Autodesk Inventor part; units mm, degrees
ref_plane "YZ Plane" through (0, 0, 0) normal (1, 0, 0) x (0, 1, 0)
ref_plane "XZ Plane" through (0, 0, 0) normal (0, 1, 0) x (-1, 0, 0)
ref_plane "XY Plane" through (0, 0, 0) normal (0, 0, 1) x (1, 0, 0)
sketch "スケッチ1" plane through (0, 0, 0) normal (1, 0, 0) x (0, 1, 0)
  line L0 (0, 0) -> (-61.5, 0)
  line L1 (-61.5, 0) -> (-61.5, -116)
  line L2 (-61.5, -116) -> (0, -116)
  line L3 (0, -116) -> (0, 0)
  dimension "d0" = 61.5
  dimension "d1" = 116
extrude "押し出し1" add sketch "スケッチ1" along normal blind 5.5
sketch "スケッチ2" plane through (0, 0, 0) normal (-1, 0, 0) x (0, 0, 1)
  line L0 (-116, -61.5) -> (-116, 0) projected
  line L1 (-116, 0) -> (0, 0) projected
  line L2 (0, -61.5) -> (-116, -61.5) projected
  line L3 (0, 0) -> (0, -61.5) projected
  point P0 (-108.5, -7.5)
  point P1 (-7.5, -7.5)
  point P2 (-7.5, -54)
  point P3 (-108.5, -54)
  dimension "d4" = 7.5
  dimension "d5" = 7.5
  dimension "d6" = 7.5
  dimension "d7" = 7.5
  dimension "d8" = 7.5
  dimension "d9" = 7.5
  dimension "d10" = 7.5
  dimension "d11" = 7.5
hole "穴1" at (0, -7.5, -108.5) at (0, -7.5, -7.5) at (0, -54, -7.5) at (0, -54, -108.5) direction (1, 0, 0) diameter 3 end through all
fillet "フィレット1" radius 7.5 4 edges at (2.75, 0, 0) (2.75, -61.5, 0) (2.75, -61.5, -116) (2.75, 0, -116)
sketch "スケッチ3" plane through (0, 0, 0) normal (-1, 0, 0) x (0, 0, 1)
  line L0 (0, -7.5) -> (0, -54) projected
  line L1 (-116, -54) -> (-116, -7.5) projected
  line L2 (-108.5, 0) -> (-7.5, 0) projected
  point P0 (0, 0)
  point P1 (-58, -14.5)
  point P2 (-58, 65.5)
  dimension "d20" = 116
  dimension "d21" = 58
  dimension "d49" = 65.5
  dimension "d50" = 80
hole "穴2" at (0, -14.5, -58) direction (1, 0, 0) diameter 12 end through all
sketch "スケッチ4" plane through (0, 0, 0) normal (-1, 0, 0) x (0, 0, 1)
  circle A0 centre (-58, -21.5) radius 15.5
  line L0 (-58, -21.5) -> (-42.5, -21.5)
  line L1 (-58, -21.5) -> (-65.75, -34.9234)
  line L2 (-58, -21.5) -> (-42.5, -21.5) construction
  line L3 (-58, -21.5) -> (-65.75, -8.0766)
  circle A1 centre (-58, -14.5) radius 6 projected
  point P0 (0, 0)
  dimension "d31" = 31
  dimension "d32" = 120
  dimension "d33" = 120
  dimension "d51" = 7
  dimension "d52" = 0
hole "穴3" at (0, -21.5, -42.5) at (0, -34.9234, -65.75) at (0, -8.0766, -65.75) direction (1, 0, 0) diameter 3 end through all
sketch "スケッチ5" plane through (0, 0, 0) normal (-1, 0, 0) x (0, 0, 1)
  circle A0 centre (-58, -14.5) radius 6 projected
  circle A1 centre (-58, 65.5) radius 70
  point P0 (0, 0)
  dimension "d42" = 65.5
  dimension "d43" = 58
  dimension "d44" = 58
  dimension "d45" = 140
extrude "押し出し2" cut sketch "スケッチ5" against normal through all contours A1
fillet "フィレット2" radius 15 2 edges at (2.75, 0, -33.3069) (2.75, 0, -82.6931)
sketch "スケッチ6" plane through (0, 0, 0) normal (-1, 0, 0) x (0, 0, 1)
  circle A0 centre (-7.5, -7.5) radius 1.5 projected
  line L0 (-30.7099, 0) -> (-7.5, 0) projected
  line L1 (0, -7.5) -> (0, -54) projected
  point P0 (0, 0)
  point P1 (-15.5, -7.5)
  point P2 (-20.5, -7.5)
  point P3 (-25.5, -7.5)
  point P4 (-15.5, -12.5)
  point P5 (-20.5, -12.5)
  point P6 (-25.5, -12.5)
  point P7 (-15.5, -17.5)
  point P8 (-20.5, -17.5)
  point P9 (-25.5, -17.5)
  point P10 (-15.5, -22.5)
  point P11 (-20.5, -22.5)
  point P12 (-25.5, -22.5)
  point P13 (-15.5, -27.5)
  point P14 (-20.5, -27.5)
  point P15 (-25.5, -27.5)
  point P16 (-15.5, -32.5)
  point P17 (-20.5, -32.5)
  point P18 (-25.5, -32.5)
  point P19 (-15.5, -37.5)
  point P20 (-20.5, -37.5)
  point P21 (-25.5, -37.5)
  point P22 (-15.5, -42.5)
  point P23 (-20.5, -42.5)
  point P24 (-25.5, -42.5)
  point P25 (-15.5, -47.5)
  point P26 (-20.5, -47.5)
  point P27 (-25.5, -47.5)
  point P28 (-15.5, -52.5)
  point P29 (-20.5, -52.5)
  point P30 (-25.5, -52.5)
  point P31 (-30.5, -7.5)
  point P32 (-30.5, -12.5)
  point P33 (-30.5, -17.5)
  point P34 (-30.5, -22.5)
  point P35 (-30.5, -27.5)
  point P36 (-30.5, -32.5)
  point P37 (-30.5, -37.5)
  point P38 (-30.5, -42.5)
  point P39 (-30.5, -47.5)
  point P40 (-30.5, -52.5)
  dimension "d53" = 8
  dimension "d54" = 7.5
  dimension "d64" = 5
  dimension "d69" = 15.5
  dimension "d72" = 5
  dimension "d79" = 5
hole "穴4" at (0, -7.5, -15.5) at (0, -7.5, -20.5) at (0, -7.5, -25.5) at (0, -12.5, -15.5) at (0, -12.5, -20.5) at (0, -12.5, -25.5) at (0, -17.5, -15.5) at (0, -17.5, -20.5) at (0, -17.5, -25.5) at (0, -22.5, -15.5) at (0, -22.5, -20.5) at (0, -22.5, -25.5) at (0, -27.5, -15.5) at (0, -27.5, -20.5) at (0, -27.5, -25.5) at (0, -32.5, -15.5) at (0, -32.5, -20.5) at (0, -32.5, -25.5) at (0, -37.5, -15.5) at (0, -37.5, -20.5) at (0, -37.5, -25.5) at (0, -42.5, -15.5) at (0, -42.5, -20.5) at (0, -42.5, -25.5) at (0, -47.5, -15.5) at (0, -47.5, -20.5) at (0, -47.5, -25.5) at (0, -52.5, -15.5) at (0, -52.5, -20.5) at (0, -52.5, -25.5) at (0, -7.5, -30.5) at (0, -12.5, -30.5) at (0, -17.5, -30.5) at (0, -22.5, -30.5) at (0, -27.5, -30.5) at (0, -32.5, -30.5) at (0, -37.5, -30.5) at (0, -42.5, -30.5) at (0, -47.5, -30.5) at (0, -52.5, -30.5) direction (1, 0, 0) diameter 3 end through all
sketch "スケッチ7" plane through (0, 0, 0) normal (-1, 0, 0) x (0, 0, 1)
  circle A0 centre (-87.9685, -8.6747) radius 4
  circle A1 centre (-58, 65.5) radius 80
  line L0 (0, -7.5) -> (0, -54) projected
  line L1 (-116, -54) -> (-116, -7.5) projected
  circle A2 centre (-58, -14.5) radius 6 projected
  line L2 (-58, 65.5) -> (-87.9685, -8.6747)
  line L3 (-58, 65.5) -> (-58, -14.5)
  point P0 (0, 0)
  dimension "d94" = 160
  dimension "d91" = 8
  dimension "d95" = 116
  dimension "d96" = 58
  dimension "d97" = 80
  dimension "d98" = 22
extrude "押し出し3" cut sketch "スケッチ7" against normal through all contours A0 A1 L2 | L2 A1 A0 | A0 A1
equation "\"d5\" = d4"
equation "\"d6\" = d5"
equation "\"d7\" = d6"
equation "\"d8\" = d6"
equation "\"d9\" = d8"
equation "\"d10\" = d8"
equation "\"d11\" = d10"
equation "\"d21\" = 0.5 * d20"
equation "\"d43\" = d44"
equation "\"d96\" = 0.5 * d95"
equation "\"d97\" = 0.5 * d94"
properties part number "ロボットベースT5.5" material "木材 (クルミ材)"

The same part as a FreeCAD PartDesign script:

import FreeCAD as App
import Part
import Sketcher
from FreeCAD import Vector
Q = App.Units.Quantity


def edges_at(feature, points):
    """Names of the edges that pass closest to the given points."""
    edges = feature.Shape.Edges
    near = lambda p: min(range(len(edges)), key=lambda i: edges[i].distToShape(Part.Vertex(*p))[0])
    return sorted({f"Edge{near(p) + 1}" for p in points})

doc = App.newDocument("Part")
body = doc.addObject("PartDesign::Body", "Body")

sketch1 = doc.addObject("Sketcher::SketchObject", "Sketch")
body.addObject(sketch1)
sketch1.AttachmentSupport = (doc.YZ_Plane, [""])
sketch1.MapMode = "FlatFace"
sketch1.addGeometry(Part.LineSegment(Vector(0, -116, 0), Vector(0, 0, 0)), False)
sketch1.addGeometry(Part.LineSegment(Vector(0, 0, 0), Vector(-62, 0, 0)), False)
sketch1.addGeometry(Part.LineSegment(Vector(-62, 0, 0), Vector(-62, -116, 0)), False)
sketch1.addGeometry(Part.LineSegment(Vector(-62, -116, 0), Vector(0, -116, 0)), False)
sketch1.addConstraint(Sketcher.Constraint("Coincident", 0, 2, 1, 1))
sketch1.addConstraint(Sketcher.Constraint("Coincident", 1, 2, 2, 1))
sketch1.addConstraint(Sketcher.Constraint("Coincident", 2, 2, 3, 1))
sketch1.addConstraint(Sketcher.Constraint("Coincident", 3, 2, 0, 1))
sketch1.addConstraint(Sketcher.Constraint("Vertical", 0))
sketch1.addConstraint(Sketcher.Constraint("Horizontal", 1))
sketch1.addConstraint(Sketcher.Constraint("Vertical", 2))
sketch1.addConstraint(Sketcher.Constraint("Horizontal", 3))
sketch1.addConstraint(Sketcher.Constraint("Coincident", 0, 2, -1, 1))
sketch1.addConstraint(Sketcher.Constraint("DistanceY", 0, 1, 0, 2, Q("116 mm")))
sketch1.addConstraint(Sketcher.Constraint("DistanceX", 1, 2, 1, 1, Q("61.5 mm")))
pad1 = doc.addObject("PartDesign::Pad", "Pad")
body.addObject(pad1)
pad1.Profile = sketch1
pad1.Length = 5.5

sketch2 = doc.addObject("Sketcher::SketchObject", "Sketch001")
body.addObject(sketch2)
sketch2.AttachmentSupport = (doc.YZ_Plane, [""])
sketch2.MapMode = "FlatFace"
sketch2.addGeometry(Part.Circle(Vector(-7.5, -108.5, 0), Vector(0, 0, 1), 1.5), False)
sketch2.addGeometry(Part.Circle(Vector(-7.5, -7.5, 0), Vector(0, 0, 1), 1.5), False)
sketch2.addGeometry(Part.Circle(Vector(-54, -7.5, 0), Vector(0, 0, 1), 1.5), False)
sketch2.addGeometry(Part.Circle(Vector(-54, -108.5, 0), Vector(0, 0, 1), 1.5), False)
sketch2.addConstraint(Sketcher.Constraint("Equal", 0, 1))
sketch2.addConstraint(Sketcher.Constraint("Equal", 1, 2))
sketch2.addConstraint(Sketcher.Constraint("Equal", 2, 3))
sketch2.addConstraint(Sketcher.Constraint("Horizontal", 1, 3, 2, 3))
sketch2.addConstraint(Sketcher.Constraint("Horizontal", 0, 3, 3, 3))
sketch2.addConstraint(Sketcher.Constraint("Vertical", 0, 3, 1, 3))
sketch2.addConstraint(Sketcher.Constraint("Vertical", 2, 3, 3, 3))
sketch2.addConstraint(Sketcher.Constraint("Diameter", 0, Q("3 mm")))
sketch2.addConstraint(Sketcher.Constraint("DistanceX", 2, 3, -1, 1, Q("54 mm")))
sketch2.addConstraint(Sketcher.Constraint("DistanceY", 0, 3, 1, 3, Q("101 mm")))
sketch2.addConstraint(Sketcher.Constraint("DistanceX", 0, 3, -1, 1, Q("7.5 mm")))
sketch2.addConstraint(Sketcher.Constraint("DistanceY", 0, 3, -1, 1, Q("108.5 mm")))
doc.recompute()
hole = doc.addObject("PartDesign::Hole", "Hole")
body.addObject(hole)
hole.Profile = sketch2
hole.ThreadType = "None"
hole.Diameter = 3
hole.DepthType = "ThroughAll"
hole.Reversed = True
doc.recompute()

fillet = doc.addObject("PartDesign::Fillet", "Fillet")
body.addObject(fillet)
fillet.Base = (hole, edges_at(hole, [
    (2.75, 0, 0),
    (2.75, -61.5, 0),
    (2.75, -61.5, -116),
    (2.75, 0, -116),
]))
fillet.Radius = 7.5

sketch3 = doc.addObject("Sketcher::SketchObject", "Sketch002")
body.addObject(sketch3)
sketch3.AttachmentSupport = (doc.YZ_Plane, [""])
sketch3.MapMode = "FlatFace"
sketch3.addGeometry(Part.Circle(Vector(-14, -58, 0), Vector(0, 0, 1), 6), False)
sketch3.addConstraint(Sketcher.Constraint("Diameter", 0, Q("12 mm")))
sketch3.addConstraint(Sketcher.Constraint("DistanceY", 0, 3, -1, 1, Q("58 mm")))
sketch3.addConstraint(Sketcher.Constraint("DistanceX", 0, 3, -1, 1, Q("14.5 mm")))
doc.recompute()
hole2 = doc.addObject("PartDesign::Hole", "Hole001")
body.addObject(hole2)
hole2.Profile = sketch3
hole2.ThreadType = "None"
hole2.Diameter = 12
hole2.DepthType = "ThroughAll"
hole2.Reversed = True

sketch4 = doc.addObject("Sketcher::SketchObject", "Sketch003")
body.addObject(sketch4)
sketch4.AttachmentSupport = (doc.YZ_Plane, [""])
sketch4.MapMode = "FlatFace"
sketch4.addGeometry(Part.Circle(Vector(-21.5, -42.5, 0), Vector(0, 0, 1), 1.5), False)
sketch4.addGeometry(Part.Circle(Vector(-34.9, -65.8, 0), Vector(0, 0, 1), 1.5), False)
sketch4.addGeometry(Part.Circle(Vector(-8.1, -65.8, 0), Vector(0, 0, 1), 1.5), False)
sketch4.addConstraint(Sketcher.Constraint("Equal", 0, 1))
sketch4.addConstraint(Sketcher.Constraint("Equal", 1, 2))
sketch4.addConstraint(Sketcher.Constraint("Horizontal", 1, 3, 2, 3))
sketch4.addConstraint(Sketcher.Constraint("Diameter", 0, Q("3 mm")))
sketch4.addConstraint(Sketcher.Constraint("DistanceX", 0, 3, -1, 1, Q("21.5 mm")))
sketch4.addConstraint(Sketcher.Constraint("DistanceY", 0, 3, -1, 1, Q("42.5 mm")))
sketch4.addConstraint(Sketcher.Constraint("DistanceY", 1, 3, -1, 1, Q("65.75 mm")))
sketch4.addConstraint(Sketcher.Constraint("DistanceX", 1, 3, -1, 1, Q("34.9234 mm")))
sketch4.addConstraint(Sketcher.Constraint("DistanceX", 2, 3, -1, 1, Q("8.0766 mm")))
doc.recompute()
hole3 = doc.addObject("PartDesign::Hole", "Hole002")
body.addObject(hole3)
hole3.Profile = sketch4
hole3.ThreadType = "None"
hole3.Diameter = 3
hole3.DepthType = "ThroughAll"
hole3.Reversed = True

sketch5 = doc.addObject("Sketcher::SketchObject", "Sketch004")
body.addObject(sketch5)
sketch5.AttachmentSupport = (doc.YZ_Plane, [""])
sketch5.MapMode = "FlatFace"
sketch5.addGeometry(Part.Circle(Vector(66, -58, 0), Vector(0, 0, 1), 70), False)
sketch5.addConstraint(Sketcher.Constraint("Diameter", 0, Q("140 mm")))
sketch5.addConstraint(Sketcher.Constraint("DistanceY", 0, 3, -1, 1, Q("58 mm")))
sketch5.addConstraint(Sketcher.Constraint("DistanceX", -1, 1, 0, 3, Q("65.5 mm")))
pocket1 = doc.addObject("PartDesign::Pocket", "Pocket")
body.addObject(pocket1)
pocket1.Profile = sketch5
pocket1.Type = "ThroughAll"
pocket1.Reversed = True
doc.recompute()

fillet2 = doc.addObject("PartDesign::Fillet", "Fillet001")
body.addObject(fillet2)
fillet2.Base = (pocket1, edges_at(pocket1, [(2.75, 0, -33.307), (2.75, 0, -82.693)]))
fillet2.Radius = 15

sketch6 = doc.addObject("Sketcher::SketchObject", "Sketch005")
body.addObject(sketch6)
sketch6.AttachmentSupport = (doc.YZ_Plane, [""])
sketch6.MapMode = "FlatFace"
sketch6.addGeometry(Part.Circle(Vector(-7.5, -15.5, 0), Vector(0, 0, 1), 1.5), False)
sketch6.addGeometry(Part.Circle(Vector(-7.5, -20.5, 0), Vector(0, 0, 1), 1.5), False)
sketch6.addGeometry(Part.Circle(Vector(-7.5, -25.5, 0), Vector(0, 0, 1), 1.5), False)
sketch6.addGeometry(Part.Circle(Vector(-12.5, -15.5, 0), Vector(0, 0, 1), 1.5), False)
sketch6.addGeometry(Part.Circle(Vector(-12.5, -20.5, 0), Vector(0, 0, 1), 1.5), False)
sketch6.addGeometry(Part.Circle(Vector(-12.5, -25.5, 0), Vector(0, 0, 1), 1.5), False)
sketch6.addGeometry(Part.Circle(Vector(-17.5, -15.5, 0), Vector(0, 0, 1), 1.5), False)
sketch6.addGeometry(Part.Circle(Vector(-17.5, -20.5, 0), Vector(0, 0, 1), 1.5), False)
sketch6.addGeometry(Part.Circle(Vector(-17.5, -25.5, 0), Vector(0, 0, 1), 1.5), False)
sketch6.addGeometry(Part.Circle(Vector(-22.5, -15.5, 0), Vector(0, 0, 1), 1.5), False)
sketch6.addGeometry(Part.Circle(Vector(-22.5, -20.5, 0), Vector(0, 0, 1), 1.5), False)
sketch6.addGeometry(Part.Circle(Vector(-22.5, -25.5, 0), Vector(0, 0, 1), 1.5), False)
sketch6.addGeometry(Part.Circle(Vector(-27.5, -15.5, 0), Vector(0, 0, 1), 1.5), False)
sketch6.addGeometry(Part.Circle(Vector(-27.5, -20.5, 0), Vector(0, 0, 1), 1.5), False)
sketch6.addGeometry(Part.Circle(Vector(-27.5, -25.5, 0), Vector(0, 0, 1), 1.5), False)
sketch6.addGeometry(Part.Circle(Vector(-32.5, -15.5, 0), Vector(0, 0, 1), 1.5), False)
sketch6.addGeometry(Part.Circle(Vector(-32.5, -20.5, 0), Vector(0, 0, 1), 1.5), False)
sketch6.addGeometry(Part.Circle(Vector(-32.5, -25.5, 0), Vector(0, 0, 1), 1.5), False)
sketch6.addGeometry(Part.Circle(Vector(-37.5, -15.5, 0), Vector(0, 0, 1), 1.5), False)
sketch6.addGeometry(Part.Circle(Vector(-37.5, -20.5, 0), Vector(0, 0, 1), 1.5), False)
sketch6.addGeometry(Part.Circle(Vector(-37.5, -25.5, 0), Vector(0, 0, 1), 1.5), False)
sketch6.addGeometry(Part.Circle(Vector(-42.5, -15.5, 0), Vector(0, 0, 1), 1.5), False)
sketch6.addGeometry(Part.Circle(Vector(-42.5, -20.5, 0), Vector(0, 0, 1), 1.5), False)
sketch6.addGeometry(Part.Circle(Vector(-42.5, -25.5, 0), Vector(0, 0, 1), 1.5), False)
sketch6.addGeometry(Part.Circle(Vector(-47.5, -15.5, 0), Vector(0, 0, 1), 1.5), False)
sketch6.addGeometry(Part.Circle(Vector(-47.5, -20.5, 0), Vector(0, 0, 1), 1.5), False)
sketch6.addGeometry(Part.Circle(Vector(-47.5, -25.5, 0), Vector(0, 0, 1), 1.5), False)
sketch6.addGeometry(Part.Circle(Vector(-52.5, -15.5, 0), Vector(0, 0, 1), 1.5), False)
sketch6.addGeometry(Part.Circle(Vector(-52.5, -20.5, 0), Vector(0, 0, 1), 1.5), False)
sketch6.addGeometry(Part.Circle(Vector(-52.5, -25.5, 0), Vector(0, 0, 1), 1.5), False)
sketch6.addGeometry(Part.Circle(Vector(-7.5, -30.5, 0), Vector(0, 0, 1), 1.5), False)
sketch6.addGeometry(Part.Circle(Vector(-12.5, -30.5, 0), Vector(0, 0, 1), 1.5), False)
sketch6.addGeometry(Part.Circle(Vector(-17.5, -30.5, 0), Vector(0, 0, 1), 1.5), False)
sketch6.addGeometry(Part.Circle(Vector(-22.5, -30.5, 0), Vector(0, 0, 1), 1.5), False)
sketch6.addGeometry(Part.Circle(Vector(-27.5, -30.5, 0), Vector(0, 0, 1), 1.5), False)
sketch6.addGeometry(Part.Circle(Vector(-32.5, -30.5, 0), Vector(0, 0, 1), 1.5), False)
sketch6.addGeometry(Part.Circle(Vector(-37.5, -30.5, 0), Vector(0, 0, 1), 1.5), False)
sketch6.addGeometry(Part.Circle(Vector(-42.5, -30.5, 0), Vector(0, 0, 1), 1.5), False)
sketch6.addGeometry(Part.Circle(Vector(-47.5, -30.5, 0), Vector(0, 0, 1), 1.5), False)
sketch6.addGeometry(Part.Circle(Vector(-52.5, -30.5, 0), Vector(0, 0, 1), 1.5), False)
sketch6.addConstraint(Sketcher.Constraint("Equal", 0, 1))
sketch6.addConstraint(Sketcher.Constraint("Equal", 1, 2))
sketch6.addConstraint(Sketcher.Constraint("Equal", 2, 3))
sketch6.addConstraint(Sketcher.Constraint("Equal", 3, 4))
sketch6.addConstraint(Sketcher.Constraint("Equal", 4, 5))
sketch6.addConstraint(Sketcher.Constraint("Equal", 5, 6))
sketch6.addConstraint(Sketcher.Constraint("Equal", 6, 7))
sketch6.addConstraint(Sketcher.Constraint("Equal", 7, 8))
sketch6.addConstraint(Sketcher.Constraint("Equal", 8, 9))
sketch6.addConstraint(Sketcher.Constraint("Equal", 9, 10))
sketch6.addConstraint(Sketcher.Constraint("Equal", 10, 11))
sketch6.addConstraint(Sketcher.Constraint("Equal", 11, 12))
sketch6.addConstraint(Sketcher.Constraint("Equal", 12, 13))
sketch6.addConstraint(Sketcher.Constraint("Equal", 13, 14))
sketch6.addConstraint(Sketcher.Constraint("Equal", 14, 15))
sketch6.addConstraint(Sketcher.Constraint("Equal", 15, 16))
sketch6.addConstraint(Sketcher.Constraint("Equal", 16, 17))
sketch6.addConstraint(Sketcher.Constraint("Equal", 17, 18))
sketch6.addConstraint(Sketcher.Constraint("Equal", 18, 19))
sketch6.addConstraint(Sketcher.Constraint("Equal", 19, 20))
sketch6.addConstraint(Sketcher.Constraint("Equal", 20, 21))
sketch6.addConstraint(Sketcher.Constraint("Equal", 21, 22))
sketch6.addConstraint(Sketcher.Constraint("Equal", 22, 23))
sketch6.addConstraint(Sketcher.Constraint("Equal", 23, 24))
sketch6.addConstraint(Sketcher.Constraint("Equal", 24, 25))
sketch6.addConstraint(Sketcher.Constraint("Equal", 25, 26))
sketch6.addConstraint(Sketcher.Constraint("Equal", 26, 27))
sketch6.addConstraint(Sketcher.Constraint("Equal", 27, 28))
sketch6.addConstraint(Sketcher.Constraint("Equal", 28, 29))
sketch6.addConstraint(Sketcher.Constraint("Equal", 29, 30))
sketch6.addConstraint(Sketcher.Constraint("Equal", 30, 31))
sketch6.addConstraint(Sketcher.Constraint("Equal", 31, 32))
sketch6.addConstraint(Sketcher.Constraint("Equal", 32, 33))
sketch6.addConstraint(Sketcher.Constraint("Equal", 33, 34))
sketch6.addConstraint(Sketcher.Constraint("Equal", 34, 35))
sketch6.addConstraint(Sketcher.Constraint("Equal", 35, 36))
sketch6.addConstraint(Sketcher.Constraint("Equal", 36, 37))
sketch6.addConstraint(Sketcher.Constraint("Equal", 37, 38))
sketch6.addConstraint(Sketcher.Constraint("Equal", 38, 39))
sketch6.addConstraint(Sketcher.Constraint("Horizontal", 0, 3, 3, 3))
sketch6.addConstraint(Sketcher.Constraint("Horizontal", 1, 3, 4, 3))
sketch6.addConstraint(Sketcher.Constraint("Horizontal", 2, 3, 5, 3))
sketch6.addConstraint(Sketcher.Constraint("Horizontal", 3, 3, 6, 3))
sketch6.addConstraint(Sketcher.Constraint("Horizontal", 4, 3, 7, 3))
sketch6.addConstraint(Sketcher.Constraint("Horizontal", 5, 3, 8, 3))
sketch6.addConstraint(Sketcher.Constraint("Horizontal", 6, 3, 9, 3))
sketch6.addConstraint(Sketcher.Constraint("Horizontal", 7, 3, 10, 3))
sketch6.addConstraint(Sketcher.Constraint("Horizontal", 8, 3, 11, 3))
sketch6.addConstraint(Sketcher.Constraint("Horizontal", 9, 3, 12, 3))
sketch6.addConstraint(Sketcher.Constraint("Horizontal", 10, 3, 13, 3))
sketch6.addConstraint(Sketcher.Constraint("Horizontal", 11, 3, 14, 3))
sketch6.addConstraint(Sketcher.Constraint("Horizontal", 12, 3, 15, 3))
sketch6.addConstraint(Sketcher.Constraint("Horizontal", 13, 3, 16, 3))
sketch6.addConstraint(Sketcher.Constraint("Horizontal", 14, 3, 17, 3))
sketch6.addConstraint(Sketcher.Constraint("Horizontal", 15, 3, 18, 3))
sketch6.addConstraint(Sketcher.Constraint("Horizontal", 16, 3, 19, 3))
sketch6.addConstraint(Sketcher.Constraint("Horizontal", 17, 3, 20, 3))
sketch6.addConstraint(Sketcher.Constraint("Horizontal", 18, 3, 21, 3))
sketch6.addConstraint(Sketcher.Constraint("Horizontal", 19, 3, 22, 3))
sketch6.addConstraint(Sketcher.Constraint("Horizontal", 20, 3, 23, 3))
sketch6.addConstraint(Sketcher.Constraint("Horizontal", 21, 3, 24, 3))
sketch6.addConstraint(Sketcher.Constraint("Horizontal", 22, 3, 25, 3))
sketch6.addConstraint(Sketcher.Constraint("Horizontal", 23, 3, 26, 3))
sketch6.addConstraint(Sketcher.Constraint("Horizontal", 24, 3, 27, 3))
sketch6.addConstraint(Sketcher.Constraint("Horizontal", 25, 3, 28, 3))
sketch6.addConstraint(Sketcher.Constraint("Horizontal", 26, 3, 29, 3))
sketch6.addConstraint(Sketcher.Constraint("Horizontal", 30, 3, 31, 3))
sketch6.addConstraint(Sketcher.Constraint("Horizontal", 31, 3, 32, 3))
sketch6.addConstraint(Sketcher.Constraint("Horizontal", 32, 3, 33, 3))
sketch6.addConstraint(Sketcher.Constraint("Horizontal", 33, 3, 34, 3))
sketch6.addConstraint(Sketcher.Constraint("Horizontal", 34, 3, 35, 3))
sketch6.addConstraint(Sketcher.Constraint("Horizontal", 35, 3, 36, 3))
sketch6.addConstraint(Sketcher.Constraint("Horizontal", 36, 3, 37, 3))
sketch6.addConstraint(Sketcher.Constraint("Horizontal", 37, 3, 38, 3))
sketch6.addConstraint(Sketcher.Constraint("Horizontal", 38, 3, 39, 3))
sketch6.addConstraint(Sketcher.Constraint("Vertical", 0, 3, 1, 3))
sketch6.addConstraint(Sketcher.Constraint("Vertical", 1, 3, 2, 3))
sketch6.addConstraint(Sketcher.Constraint("Vertical", 3, 3, 4, 3))
sketch6.addConstraint(Sketcher.Constraint("Vertical", 4, 3, 5, 3))
sketch6.addConstraint(Sketcher.Constraint("Vertical", 6, 3, 7, 3))
sketch6.addConstraint(Sketcher.Constraint("Vertical", 7, 3, 8, 3))
sketch6.addConstraint(Sketcher.Constraint("Vertical", 9, 3, 10, 3))
sketch6.addConstraint(Sketcher.Constraint("Vertical", 10, 3, 11, 3))
sketch6.addConstraint(Sketcher.Constraint("Vertical", 12, 3, 13, 3))
sketch6.addConstraint(Sketcher.Constraint("Vertical", 13, 3, 14, 3))
sketch6.addConstraint(Sketcher.Constraint("Vertical", 15, 3, 16, 3))
sketch6.addConstraint(Sketcher.Constraint("Vertical", 16, 3, 17, 3))
sketch6.addConstraint(Sketcher.Constraint("Vertical", 18, 3, 19, 3))
sketch6.addConstraint(Sketcher.Constraint("Vertical", 19, 3, 20, 3))
sketch6.addConstraint(Sketcher.Constraint("Vertical", 21, 3, 22, 3))
sketch6.addConstraint(Sketcher.Constraint("Vertical", 22, 3, 23, 3))
sketch6.addConstraint(Sketcher.Constraint("Vertical", 24, 3, 25, 3))
sketch6.addConstraint(Sketcher.Constraint("Vertical", 25, 3, 26, 3))
sketch6.addConstraint(Sketcher.Constraint("Vertical", 27, 3, 28, 3))
sketch6.addConstraint(Sketcher.Constraint("Vertical", 28, 3, 29, 3))
sketch6.addConstraint(Sketcher.Constraint("Vertical", 2, 3, 30, 3))
sketch6.addConstraint(Sketcher.Constraint("Vertical", 5, 3, 31, 3))
sketch6.addConstraint(Sketcher.Constraint("Vertical", 8, 3, 32, 3))
sketch6.addConstraint(Sketcher.Constraint("Vertical", 11, 3, 33, 3))
sketch6.addConstraint(Sketcher.Constraint("Vertical", 14, 3, 34, 3))
sketch6.addConstraint(Sketcher.Constraint("Vertical", 17, 3, 35, 3))
sketch6.addConstraint(Sketcher.Constraint("Vertical", 20, 3, 36, 3))
sketch6.addConstraint(Sketcher.Constraint("Vertical", 23, 3, 37, 3))
sketch6.addConstraint(Sketcher.Constraint("Vertical", 26, 3, 38, 3))
sketch6.addConstraint(Sketcher.Constraint("Vertical", 29, 3, 39, 3))
sketch6.addConstraint(Sketcher.Constraint("Diameter", 0, Q("3 mm")))
sketch6.addConstraint(Sketcher.Constraint("DistanceY", 1, 3, 0, 3, Q("5 mm")))
sketch6.addConstraint(Sketcher.Constraint("DistanceY", 2, 3, 1, 3, Q("5 mm")))
sketch6.addConstraint(Sketcher.Constraint("DistanceX", 3, 3, 0, 3, Q("5 mm")))
sketch6.addConstraint(Sketcher.Constraint("DistanceX", 6, 3, 3, 3, Q("5 mm")))
sketch6.addConstraint(Sketcher.Constraint("DistanceX", 9, 3, 6, 3, Q("5 mm")))
sketch6.addConstraint(Sketcher.Constraint("DistanceX", 12, 3, 9, 3, Q("5 mm")))
sketch6.addConstraint(Sketcher.Constraint("DistanceX", 15, 3, 12, 3, Q("5 mm")))
sketch6.addConstraint(Sketcher.Constraint("DistanceX", 18, 3, 15, 3, Q("5 mm")))
sketch6.addConstraint(Sketcher.Constraint("DistanceX", 21, 3, 18, 3, Q("5 mm")))
sketch6.addConstraint(Sketcher.Constraint("DistanceX", 24, 3, 21, 3, Q("5 mm")))
sketch6.addConstraint(Sketcher.Constraint("DistanceX", 27, 3, 24, 3, Q("5 mm")))
sketch6.addConstraint(Sketcher.Constraint("DistanceY", 30, 3, 2, 3, Q("5 mm")))
sketch6.addConstraint(Sketcher.Constraint("DistanceX", 0, 3, -1, 1, Q("7.5 mm")))
sketch6.addConstraint(Sketcher.Constraint("DistanceY", 0, 3, -1, 1, Q("15.5 mm")))
doc.recompute()
hole4 = doc.addObject("PartDesign::Hole", "Hole003")
body.addObject(hole4)
hole4.Profile = sketch6
hole4.ThreadType = "None"
hole4.Diameter = 3
hole4.DepthType = "ThroughAll"
hole4.Reversed = True

sketch7 = doc.addObject("Sketcher::SketchObject", "Sketch006")
body.addObject(sketch7)
sketch7.AttachmentSupport = (doc.YZ_Plane, [""])
sketch7.MapMode = "FlatFace"
sketch7.addGeometry(Part.Circle(Vector(-8.7, -88, 0), Vector(0, 0, 1), 4), False)
sketch7.addConstraint(Sketcher.Constraint("Diameter", 0, Q("8 mm")))
sketch7.addConstraint(Sketcher.Constraint("DistanceX", 0, 3, -1, 1, Q("8.6747 mm")))
sketch7.addConstraint(Sketcher.Constraint("DistanceY", 0, 3, -1, 1, Q("87.9685 mm")))
pocket2 = doc.addObject("PartDesign::Pocket", "Pocket001")
body.addObject(pocket2)
pocket2.Profile = sketch7
pocket2.Type = "ThroughAll"
pocket2.Reversed = True

doc.recompute()
